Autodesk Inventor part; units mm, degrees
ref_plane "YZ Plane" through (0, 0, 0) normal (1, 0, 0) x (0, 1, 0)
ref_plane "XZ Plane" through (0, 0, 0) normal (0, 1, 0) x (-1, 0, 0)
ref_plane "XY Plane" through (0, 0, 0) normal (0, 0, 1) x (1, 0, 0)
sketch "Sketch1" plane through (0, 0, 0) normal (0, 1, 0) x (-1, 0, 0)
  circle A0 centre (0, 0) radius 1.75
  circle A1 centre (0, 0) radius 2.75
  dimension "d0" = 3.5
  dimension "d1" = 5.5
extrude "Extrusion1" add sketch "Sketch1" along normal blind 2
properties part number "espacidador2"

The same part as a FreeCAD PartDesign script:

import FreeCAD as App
import Part
import Sketcher
from FreeCAD import Vector
Q = App.Units.Quantity

doc = App.newDocument("Part")
body = doc.addObject("PartDesign::Body", "Body")

# Sketch on XZ plane
sketch1 = body.newObject("Sketcher::SketchObject", "Sketch")
sketch1.AttachmentSupport = (doc.getObject("XZ_Plane"), [""])
sketch1.MapMode = "FlatFace"
sketch1.addGeometry(Part.Circle(Vector(0, 0, 0), Vector(0, 0, 1), 2.8), False)
sketch1.addGeometry(Part.Circle(Vector(0, 0, 0), Vector(0, 0, 1), 1.8), False)
sketch1.addConstraint(Sketcher.Constraint("Coincident", 0, 3, -1, 1))
sketch1.addConstraint(Sketcher.Constraint("Coincident", 1, 3, -1, 1))
sketch1.addConstraint(Sketcher.Constraint("Diameter", 0, Q("5.5 mm")))
sketch1.addConstraint(Sketcher.Constraint("Diameter", 1, Q("3.5 mm")))
pad1 = body.newObject("PartDesign::Pad", "Pad")
pad1.Profile = sketch1
pad1.Length = 2
pad1.Reversed = True

doc.recompute()
